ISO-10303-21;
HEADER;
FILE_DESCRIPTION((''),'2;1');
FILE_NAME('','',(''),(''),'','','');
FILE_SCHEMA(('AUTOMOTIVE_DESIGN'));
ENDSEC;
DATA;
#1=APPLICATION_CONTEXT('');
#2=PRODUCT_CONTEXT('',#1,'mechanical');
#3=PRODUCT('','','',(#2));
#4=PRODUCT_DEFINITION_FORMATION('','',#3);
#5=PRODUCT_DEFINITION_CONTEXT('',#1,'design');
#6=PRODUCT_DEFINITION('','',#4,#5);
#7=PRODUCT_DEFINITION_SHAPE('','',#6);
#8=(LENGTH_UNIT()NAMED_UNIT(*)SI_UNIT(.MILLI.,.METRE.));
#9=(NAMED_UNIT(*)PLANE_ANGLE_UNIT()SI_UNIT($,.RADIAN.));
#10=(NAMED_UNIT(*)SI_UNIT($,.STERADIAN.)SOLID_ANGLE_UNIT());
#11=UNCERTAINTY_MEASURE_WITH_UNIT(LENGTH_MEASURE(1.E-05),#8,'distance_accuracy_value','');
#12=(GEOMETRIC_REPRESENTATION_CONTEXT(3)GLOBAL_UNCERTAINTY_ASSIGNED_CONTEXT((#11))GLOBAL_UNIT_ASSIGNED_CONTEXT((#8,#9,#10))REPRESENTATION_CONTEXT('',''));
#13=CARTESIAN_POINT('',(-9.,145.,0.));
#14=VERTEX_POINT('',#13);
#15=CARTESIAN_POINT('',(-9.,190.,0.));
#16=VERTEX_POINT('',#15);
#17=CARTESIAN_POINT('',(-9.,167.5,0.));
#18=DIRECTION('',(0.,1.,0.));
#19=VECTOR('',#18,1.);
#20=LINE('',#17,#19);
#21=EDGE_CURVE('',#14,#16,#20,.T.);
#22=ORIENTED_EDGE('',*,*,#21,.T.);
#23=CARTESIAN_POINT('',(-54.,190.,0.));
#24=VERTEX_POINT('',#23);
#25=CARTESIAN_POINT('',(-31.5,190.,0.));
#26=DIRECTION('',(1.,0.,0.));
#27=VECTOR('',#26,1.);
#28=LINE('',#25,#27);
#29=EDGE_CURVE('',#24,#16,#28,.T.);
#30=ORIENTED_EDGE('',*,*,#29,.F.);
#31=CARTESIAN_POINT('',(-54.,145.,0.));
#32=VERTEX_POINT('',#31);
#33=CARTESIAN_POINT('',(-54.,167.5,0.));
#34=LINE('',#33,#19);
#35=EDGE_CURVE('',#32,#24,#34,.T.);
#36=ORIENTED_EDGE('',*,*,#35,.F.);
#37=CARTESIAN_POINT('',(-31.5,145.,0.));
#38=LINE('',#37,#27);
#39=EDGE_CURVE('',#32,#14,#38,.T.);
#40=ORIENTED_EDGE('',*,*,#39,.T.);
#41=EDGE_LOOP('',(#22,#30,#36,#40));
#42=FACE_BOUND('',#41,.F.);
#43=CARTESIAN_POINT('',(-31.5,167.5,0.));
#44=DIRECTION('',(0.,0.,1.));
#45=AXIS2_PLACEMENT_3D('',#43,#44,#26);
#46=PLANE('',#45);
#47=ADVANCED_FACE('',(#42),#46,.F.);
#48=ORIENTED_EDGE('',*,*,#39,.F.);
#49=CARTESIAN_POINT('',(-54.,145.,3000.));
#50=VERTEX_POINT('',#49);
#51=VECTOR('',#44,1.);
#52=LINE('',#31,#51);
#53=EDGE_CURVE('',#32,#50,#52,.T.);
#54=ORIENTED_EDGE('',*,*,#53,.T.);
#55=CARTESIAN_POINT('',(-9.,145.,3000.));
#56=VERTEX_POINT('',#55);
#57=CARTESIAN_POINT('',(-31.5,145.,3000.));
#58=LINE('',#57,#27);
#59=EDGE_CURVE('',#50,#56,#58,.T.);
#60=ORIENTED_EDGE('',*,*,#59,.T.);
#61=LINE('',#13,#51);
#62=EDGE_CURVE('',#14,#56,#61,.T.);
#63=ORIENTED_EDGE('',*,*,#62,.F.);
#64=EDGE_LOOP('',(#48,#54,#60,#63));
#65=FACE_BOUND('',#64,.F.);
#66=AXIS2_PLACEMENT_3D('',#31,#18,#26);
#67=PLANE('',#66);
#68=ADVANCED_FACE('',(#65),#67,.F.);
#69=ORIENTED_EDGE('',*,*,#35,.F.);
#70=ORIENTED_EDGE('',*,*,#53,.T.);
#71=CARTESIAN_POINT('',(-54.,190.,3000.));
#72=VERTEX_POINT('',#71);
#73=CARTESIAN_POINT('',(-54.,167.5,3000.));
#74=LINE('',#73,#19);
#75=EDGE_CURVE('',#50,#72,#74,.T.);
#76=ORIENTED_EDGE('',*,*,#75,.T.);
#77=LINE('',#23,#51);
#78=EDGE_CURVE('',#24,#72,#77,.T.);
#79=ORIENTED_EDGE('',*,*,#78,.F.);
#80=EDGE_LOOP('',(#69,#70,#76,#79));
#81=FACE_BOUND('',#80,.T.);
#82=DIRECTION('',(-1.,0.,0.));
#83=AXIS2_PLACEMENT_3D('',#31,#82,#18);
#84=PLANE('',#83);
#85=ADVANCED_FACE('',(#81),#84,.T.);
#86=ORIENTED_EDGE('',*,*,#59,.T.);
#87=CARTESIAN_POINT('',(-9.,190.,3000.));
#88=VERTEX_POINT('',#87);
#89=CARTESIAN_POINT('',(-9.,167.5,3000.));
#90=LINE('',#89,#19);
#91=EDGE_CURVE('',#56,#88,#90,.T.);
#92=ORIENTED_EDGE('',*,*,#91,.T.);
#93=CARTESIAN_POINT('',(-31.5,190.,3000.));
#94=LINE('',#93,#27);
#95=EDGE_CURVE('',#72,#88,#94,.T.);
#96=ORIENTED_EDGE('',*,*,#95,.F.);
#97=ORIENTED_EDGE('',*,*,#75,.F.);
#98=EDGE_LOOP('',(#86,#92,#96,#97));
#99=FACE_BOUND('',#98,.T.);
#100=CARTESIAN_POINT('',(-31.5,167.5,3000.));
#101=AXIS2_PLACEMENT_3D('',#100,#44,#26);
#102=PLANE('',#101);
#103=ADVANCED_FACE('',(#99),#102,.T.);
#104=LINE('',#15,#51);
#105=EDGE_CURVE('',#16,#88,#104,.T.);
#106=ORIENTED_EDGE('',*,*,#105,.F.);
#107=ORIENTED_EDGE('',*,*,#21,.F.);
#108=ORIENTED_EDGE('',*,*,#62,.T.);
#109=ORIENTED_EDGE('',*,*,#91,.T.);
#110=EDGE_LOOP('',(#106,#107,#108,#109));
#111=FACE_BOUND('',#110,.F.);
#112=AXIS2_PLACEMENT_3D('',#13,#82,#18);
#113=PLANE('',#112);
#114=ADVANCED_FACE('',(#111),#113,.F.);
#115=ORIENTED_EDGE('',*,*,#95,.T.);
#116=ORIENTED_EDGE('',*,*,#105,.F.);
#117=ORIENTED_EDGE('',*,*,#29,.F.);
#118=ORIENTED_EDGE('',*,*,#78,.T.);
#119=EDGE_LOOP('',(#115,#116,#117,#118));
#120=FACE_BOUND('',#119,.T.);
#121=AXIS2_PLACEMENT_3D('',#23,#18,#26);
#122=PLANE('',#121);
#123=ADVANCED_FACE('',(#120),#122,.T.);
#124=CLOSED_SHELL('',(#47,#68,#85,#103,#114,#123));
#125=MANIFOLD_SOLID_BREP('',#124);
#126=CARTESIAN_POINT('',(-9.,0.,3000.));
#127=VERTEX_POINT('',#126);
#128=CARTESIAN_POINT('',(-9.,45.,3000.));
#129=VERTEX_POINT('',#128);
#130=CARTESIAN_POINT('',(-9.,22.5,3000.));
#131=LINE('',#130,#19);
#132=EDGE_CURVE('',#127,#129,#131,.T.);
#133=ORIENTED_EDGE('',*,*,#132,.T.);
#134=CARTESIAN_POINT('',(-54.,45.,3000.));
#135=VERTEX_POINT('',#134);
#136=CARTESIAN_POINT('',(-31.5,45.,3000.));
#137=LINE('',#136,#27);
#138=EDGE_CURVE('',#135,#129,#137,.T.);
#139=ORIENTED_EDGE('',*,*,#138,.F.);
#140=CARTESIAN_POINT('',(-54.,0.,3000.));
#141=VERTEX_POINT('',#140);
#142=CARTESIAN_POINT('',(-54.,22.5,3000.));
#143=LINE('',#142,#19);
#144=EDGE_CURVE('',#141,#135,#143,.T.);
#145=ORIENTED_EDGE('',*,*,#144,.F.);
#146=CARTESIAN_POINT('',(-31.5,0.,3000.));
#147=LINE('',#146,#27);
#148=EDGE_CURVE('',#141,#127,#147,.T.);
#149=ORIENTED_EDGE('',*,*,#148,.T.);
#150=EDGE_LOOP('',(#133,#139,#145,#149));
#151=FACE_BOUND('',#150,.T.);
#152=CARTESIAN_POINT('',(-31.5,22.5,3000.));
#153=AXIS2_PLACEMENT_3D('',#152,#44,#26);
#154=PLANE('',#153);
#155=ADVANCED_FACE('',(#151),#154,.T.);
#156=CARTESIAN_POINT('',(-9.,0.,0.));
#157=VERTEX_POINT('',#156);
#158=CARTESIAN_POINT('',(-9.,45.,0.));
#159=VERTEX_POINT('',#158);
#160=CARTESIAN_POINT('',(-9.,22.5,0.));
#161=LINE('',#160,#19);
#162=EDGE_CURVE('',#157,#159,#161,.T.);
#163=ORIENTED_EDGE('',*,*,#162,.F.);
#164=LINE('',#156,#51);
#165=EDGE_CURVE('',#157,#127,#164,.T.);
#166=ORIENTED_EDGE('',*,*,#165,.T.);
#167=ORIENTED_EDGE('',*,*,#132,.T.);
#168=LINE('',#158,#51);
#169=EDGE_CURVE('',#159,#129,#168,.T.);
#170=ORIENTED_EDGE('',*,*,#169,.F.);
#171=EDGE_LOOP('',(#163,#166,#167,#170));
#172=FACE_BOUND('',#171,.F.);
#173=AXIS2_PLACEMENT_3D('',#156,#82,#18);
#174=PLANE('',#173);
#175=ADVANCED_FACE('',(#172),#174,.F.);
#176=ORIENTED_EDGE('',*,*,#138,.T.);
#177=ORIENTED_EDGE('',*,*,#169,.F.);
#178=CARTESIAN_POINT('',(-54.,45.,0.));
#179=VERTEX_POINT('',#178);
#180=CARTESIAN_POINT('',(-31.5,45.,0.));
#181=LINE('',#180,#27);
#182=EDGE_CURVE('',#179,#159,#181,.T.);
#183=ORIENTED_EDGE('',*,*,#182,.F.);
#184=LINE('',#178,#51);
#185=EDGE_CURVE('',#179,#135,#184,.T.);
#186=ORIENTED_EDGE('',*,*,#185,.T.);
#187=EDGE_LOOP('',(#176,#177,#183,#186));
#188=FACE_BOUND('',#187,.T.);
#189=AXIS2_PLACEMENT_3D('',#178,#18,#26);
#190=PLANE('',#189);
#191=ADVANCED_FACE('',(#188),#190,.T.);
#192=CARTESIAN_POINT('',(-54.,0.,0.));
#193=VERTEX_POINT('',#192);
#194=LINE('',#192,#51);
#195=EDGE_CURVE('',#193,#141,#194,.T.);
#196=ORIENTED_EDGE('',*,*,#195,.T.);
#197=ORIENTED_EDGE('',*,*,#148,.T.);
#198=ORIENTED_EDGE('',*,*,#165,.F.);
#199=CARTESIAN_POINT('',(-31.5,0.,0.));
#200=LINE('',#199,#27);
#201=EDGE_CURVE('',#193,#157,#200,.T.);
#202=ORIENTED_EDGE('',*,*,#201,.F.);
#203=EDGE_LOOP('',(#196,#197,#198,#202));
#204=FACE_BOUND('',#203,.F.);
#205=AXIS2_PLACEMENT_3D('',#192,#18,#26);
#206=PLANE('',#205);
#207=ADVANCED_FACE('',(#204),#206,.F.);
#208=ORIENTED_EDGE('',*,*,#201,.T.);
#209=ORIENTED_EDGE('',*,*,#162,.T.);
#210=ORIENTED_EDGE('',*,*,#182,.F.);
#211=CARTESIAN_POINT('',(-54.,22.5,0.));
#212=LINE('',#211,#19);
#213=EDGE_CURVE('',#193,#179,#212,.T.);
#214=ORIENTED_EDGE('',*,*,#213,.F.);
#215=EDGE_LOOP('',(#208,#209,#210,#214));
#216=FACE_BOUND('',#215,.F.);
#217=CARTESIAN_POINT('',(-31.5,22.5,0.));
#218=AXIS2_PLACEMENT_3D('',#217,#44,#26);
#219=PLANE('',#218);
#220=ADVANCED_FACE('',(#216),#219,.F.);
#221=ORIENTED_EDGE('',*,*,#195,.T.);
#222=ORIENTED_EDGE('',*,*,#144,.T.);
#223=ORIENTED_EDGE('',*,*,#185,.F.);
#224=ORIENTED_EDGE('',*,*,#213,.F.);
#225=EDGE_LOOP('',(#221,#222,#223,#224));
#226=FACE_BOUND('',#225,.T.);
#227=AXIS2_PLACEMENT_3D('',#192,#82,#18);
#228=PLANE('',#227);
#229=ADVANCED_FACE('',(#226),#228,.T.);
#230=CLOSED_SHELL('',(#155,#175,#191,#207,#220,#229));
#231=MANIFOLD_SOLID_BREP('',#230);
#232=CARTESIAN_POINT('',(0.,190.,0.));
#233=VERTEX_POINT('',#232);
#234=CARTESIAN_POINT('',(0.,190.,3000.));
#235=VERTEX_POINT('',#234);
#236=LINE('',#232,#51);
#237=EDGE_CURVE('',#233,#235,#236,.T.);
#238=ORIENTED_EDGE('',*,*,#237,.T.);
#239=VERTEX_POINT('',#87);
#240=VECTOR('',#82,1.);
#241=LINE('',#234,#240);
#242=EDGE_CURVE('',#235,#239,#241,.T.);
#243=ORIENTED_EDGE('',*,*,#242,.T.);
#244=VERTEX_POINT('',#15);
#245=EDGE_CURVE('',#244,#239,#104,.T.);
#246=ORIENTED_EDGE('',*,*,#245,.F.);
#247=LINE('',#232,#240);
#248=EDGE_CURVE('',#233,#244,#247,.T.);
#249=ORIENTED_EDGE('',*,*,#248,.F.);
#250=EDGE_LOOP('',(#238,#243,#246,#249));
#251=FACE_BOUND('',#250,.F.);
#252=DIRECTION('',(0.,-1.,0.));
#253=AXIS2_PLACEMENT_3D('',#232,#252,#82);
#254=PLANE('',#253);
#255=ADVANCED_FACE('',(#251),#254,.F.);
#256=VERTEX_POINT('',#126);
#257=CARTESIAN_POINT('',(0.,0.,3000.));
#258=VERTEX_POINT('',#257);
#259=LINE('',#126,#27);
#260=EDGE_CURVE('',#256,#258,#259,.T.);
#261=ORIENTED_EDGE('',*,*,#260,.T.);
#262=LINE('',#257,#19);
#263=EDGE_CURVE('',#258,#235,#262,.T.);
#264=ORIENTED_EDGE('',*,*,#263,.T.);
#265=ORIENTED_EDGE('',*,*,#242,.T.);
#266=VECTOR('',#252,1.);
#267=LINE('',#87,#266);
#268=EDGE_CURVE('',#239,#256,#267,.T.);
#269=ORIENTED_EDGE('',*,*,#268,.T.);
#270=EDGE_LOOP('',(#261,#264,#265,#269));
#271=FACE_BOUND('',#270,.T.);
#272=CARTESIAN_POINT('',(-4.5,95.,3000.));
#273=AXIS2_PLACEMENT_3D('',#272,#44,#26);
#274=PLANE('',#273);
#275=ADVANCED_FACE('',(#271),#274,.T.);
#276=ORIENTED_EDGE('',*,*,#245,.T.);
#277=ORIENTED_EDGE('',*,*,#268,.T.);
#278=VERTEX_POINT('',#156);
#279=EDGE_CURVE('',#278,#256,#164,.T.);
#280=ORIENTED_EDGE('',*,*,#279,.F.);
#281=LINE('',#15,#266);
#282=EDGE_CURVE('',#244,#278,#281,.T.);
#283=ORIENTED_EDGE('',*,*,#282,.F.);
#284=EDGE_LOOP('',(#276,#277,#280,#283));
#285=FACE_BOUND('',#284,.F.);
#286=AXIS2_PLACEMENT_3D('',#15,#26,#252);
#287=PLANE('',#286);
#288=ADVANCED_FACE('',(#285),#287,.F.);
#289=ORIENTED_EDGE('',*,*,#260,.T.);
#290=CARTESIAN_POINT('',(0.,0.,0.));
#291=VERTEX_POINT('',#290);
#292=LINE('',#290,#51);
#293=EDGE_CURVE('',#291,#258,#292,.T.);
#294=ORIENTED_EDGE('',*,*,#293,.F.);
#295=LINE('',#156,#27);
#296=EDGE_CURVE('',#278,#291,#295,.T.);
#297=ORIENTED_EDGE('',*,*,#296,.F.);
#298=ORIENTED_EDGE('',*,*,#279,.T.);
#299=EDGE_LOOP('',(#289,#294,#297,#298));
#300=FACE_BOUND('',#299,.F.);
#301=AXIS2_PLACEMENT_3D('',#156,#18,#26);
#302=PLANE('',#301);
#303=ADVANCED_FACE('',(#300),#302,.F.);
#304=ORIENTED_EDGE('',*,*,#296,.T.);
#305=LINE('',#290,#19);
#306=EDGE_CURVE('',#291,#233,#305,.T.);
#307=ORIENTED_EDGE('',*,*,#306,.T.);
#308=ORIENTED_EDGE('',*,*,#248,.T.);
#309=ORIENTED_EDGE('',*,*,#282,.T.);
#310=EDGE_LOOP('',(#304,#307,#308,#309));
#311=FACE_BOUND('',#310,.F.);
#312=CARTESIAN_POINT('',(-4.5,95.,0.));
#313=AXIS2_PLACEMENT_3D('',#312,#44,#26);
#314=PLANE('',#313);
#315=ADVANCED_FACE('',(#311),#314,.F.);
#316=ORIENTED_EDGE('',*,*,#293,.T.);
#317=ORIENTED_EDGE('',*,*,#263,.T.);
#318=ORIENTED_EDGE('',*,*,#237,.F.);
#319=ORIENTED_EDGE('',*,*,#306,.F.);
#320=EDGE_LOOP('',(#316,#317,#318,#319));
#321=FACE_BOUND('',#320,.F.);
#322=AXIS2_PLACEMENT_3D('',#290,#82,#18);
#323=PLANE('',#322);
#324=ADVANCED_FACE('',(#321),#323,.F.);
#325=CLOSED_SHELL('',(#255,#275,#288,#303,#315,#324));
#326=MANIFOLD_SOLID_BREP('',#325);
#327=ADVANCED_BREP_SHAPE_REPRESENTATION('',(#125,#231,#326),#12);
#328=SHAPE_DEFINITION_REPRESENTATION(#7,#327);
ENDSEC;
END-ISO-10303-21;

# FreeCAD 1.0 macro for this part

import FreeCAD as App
import Part
import Sketcher

V = App.Vector

doc = App.newDocument("Part")
body = doc.addObject("PartDesign::Body", "Body")
body.AllowCompound = True

sketch1 = body.newObject("Sketcher::SketchObject", "Sketch")
sketch1.AttachmentSupport = (doc.getObject("XY_Plane"), [""])
sketch1.MapMode = "FlatFace"
sketch1.addGeometry(Part.LineSegment(V(-54, 45, 0), V(-54, 0, 0)), False)
sketch1.addGeometry(Part.LineSegment(V(-54, 0, 0), V(-9, 0, 0)), False)
sketch1.addGeometry(Part.LineSegment(V(-9, 0, 0), V(-9, 45, 0)), False)
sketch1.addGeometry(Part.LineSegment(V(-9, 45, 0), V(-54, 45, 0)), False)
sketch1.addGeometry(Part.LineSegment(V(-54, 190, 0), V(-54, 145, 0)), False)
sketch1.addGeometry(Part.LineSegment(V(-54, 145, 0), V(-9, 145, 0)), False)
sketch1.addGeometry(Part.LineSegment(V(-9, 145, 0), V(-9, 190, 0)), False)
sketch1.addGeometry(Part.LineSegment(V(-9, 190, 0), V(-54, 190, 0)), False)
sketch1.addConstraint(Sketcher.Constraint("Coincident", 0, 2, 1, 1))
sketch1.addConstraint(Sketcher.Constraint("Coincident", 1, 2, 2, 1))
sketch1.addConstraint(Sketcher.Constraint("Coincident", 2, 2, 3, 1))
sketch1.addConstraint(Sketcher.Constraint("Coincident", 3, 2, 0, 1))
sketch1.addConstraint(Sketcher.Constraint("Coincident", 4, 2, 5, 1))
sketch1.addConstraint(Sketcher.Constraint("Coincident", 5, 2, 6, 1))
sketch1.addConstraint(Sketcher.Constraint("Coincident", 6, 2, 7, 1))
sketch1.addConstraint(Sketcher.Constraint("Coincident", 7, 2, 4, 1))
sketch1.addConstraint(Sketcher.Constraint("Vertical", 0))
sketch1.addConstraint(Sketcher.Constraint("Horizontal", 1))
sketch1.addConstraint(Sketcher.Constraint("Vertical", 2))
sketch1.addConstraint(Sketcher.Constraint("Horizontal", 3))
sketch1.addConstraint(Sketcher.Constraint("Vertical", 4))
sketch1.addConstraint(Sketcher.Constraint("Horizontal", 5))
sketch1.addConstraint(Sketcher.Constraint("Vertical", 6))
sketch1.addConstraint(Sketcher.Constraint("Horizontal", 7))
sketch1.addConstraint(Sketcher.Constraint("PointOnObject", 0, 2, -1))
sketch1.addConstraint(Sketcher.Constraint("Vertical", 3, 2, 4, 2))
sketch1.addConstraint(Sketcher.Constraint("Vertical", 2, 2, 5, 2))
sketch1.addConstraint(Sketcher.Constraint("Equal", 7, 0))
sketch1.addConstraint(Sketcher.Constraint("Equal", 2, 4))
sketch1.addConstraint(Sketcher.Constraint("DistanceX", 1, 1, 1, 2, 45.0))
sketch1.addConstraint(Sketcher.Constraint("DistanceX", 0, 2, -1, 1, 54.0))
sketch1.addConstraint(Sketcher.Constraint("DistanceY", -1, 1, 4, 2, 145.0))
pad1 = body.newObject("PartDesign::Pad", "Pad")
pad1.Profile = sketch1
pad1.Length = 3000
body2 = doc.addObject("PartDesign::Body", "Body001")

sketch2 = body2.newObject("Sketcher::SketchObject", "Sketch001")
sketch2.AttachmentSupport = (doc.getObject("XY_Plane001"), [""])
sketch2.MapMode = "FlatFace"
sketch2.addGeometry(Part.LineSegment(V(-9, 0, 0), V(0, 0, 0)), False)
sketch2.addGeometry(Part.LineSegment(V(0, 0, 0), V(0, 190, 0)), False)
sketch2.addGeometry(Part.LineSegment(V(0, 190, 0), V(-9, 190, 0)), False)
sketch2.addGeometry(Part.LineSegment(V(-9, 190, 0), V(-9, 0, 0)), False)
sketch2.addConstraint(Sketcher.Constraint("Coincident", 0, 2, 1, 1))
sketch2.addConstraint(Sketcher.Constraint("Coincident", 1, 2, 2, 1))
sketch2.addConstraint(Sketcher.Constraint("Coincident", 2, 2, 3, 1))
sketch2.addConstraint(Sketcher.Constraint("Coincident", 3, 2, 0, 1))
sketch2.addConstraint(Sketcher.Constraint("Horizontal", 0))
sketch2.addConstraint(Sketcher.Constraint("Vertical", 1))
sketch2.addConstraint(Sketcher.Constraint("Horizontal", 2))
sketch2.addConstraint(Sketcher.Constraint("Vertical", 3))
sketch2.addConstraint(Sketcher.Constraint("Coincident", 0, 2, -1, 1))
sketch2.addConstraint(Sketcher.Constraint("DistanceX", 0, 1, 0, 2, 9.0))
sketch2.addConstraint(Sketcher.Constraint("DistanceY", 1, 1, 1, 2, 190.0))
pad2 = body2.newObject("PartDesign::Pad", "Pad001")
pad2.Profile = sketch2
pad2.Length = 3000

doc.recompute()
